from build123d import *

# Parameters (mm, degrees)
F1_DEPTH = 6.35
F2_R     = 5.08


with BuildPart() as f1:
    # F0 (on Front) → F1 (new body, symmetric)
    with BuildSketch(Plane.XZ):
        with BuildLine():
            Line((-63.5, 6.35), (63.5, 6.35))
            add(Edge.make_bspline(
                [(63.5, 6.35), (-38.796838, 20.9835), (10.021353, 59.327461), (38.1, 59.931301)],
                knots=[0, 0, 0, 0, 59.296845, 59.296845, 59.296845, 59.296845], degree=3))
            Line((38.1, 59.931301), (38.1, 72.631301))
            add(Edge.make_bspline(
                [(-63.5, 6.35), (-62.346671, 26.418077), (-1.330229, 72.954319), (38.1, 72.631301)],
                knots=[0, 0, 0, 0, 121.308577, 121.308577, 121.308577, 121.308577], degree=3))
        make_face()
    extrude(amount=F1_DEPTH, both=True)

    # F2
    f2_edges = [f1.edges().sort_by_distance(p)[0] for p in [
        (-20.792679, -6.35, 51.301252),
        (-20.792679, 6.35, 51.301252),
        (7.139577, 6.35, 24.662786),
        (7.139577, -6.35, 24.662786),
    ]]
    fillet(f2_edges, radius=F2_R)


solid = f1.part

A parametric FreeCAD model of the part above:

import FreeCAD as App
import Part
import Sketcher
from FreeCAD import Vector


def edges_at(feature, points):
    """Names of the edges that pass closest to the given points."""
    edges = feature.Shape.Edges
    near = lambda p: min(range(len(edges)), key=lambda i: edges[i].distToShape(Part.Vertex(*p))[0])
    return sorted({f"Edge{near(p) + 1}" for p in points})

doc = App.newDocument("Part")
params = doc.addObject("Spreadsheet::Sheet", "Params")
for row, (alias, value) in enumerate([
    ("pad1_length", "0.5 in"),
    ("fillet_radius", "0.2 in"),
], start=1):
    params.set(f"A{row}", alias)
    params.set(f"B{row}", "=" + value)
    params.setAlias(f"B{row}", alias)

body = doc.addObject("PartDesign::Body", "Body")

sketch1 = body.newObject("Sketcher::SketchObject", "Sketch")
sketch1.AttachmentSupport = (doc.getObject("XZ_Plane"), [""])
sketch1.MapMode = "FlatFace"
sketch1.addGeometry([
    Part.LineSegment(Vector(-63.5, 6.35, 0), Vector(63.5, 6.35, 0)),
    Part.BSplineCurve([Vector(63.5, 6.35, 0), Vector(-38.796838, 20.9835, 0), Vector(10.021353, 59.327461, 0), Vector(38.1, 59.931301, 0)], [4, 4], [0, 59.296845], False, 3, [1, 1, 1, 1], False),
    Part.LineSegment(Vector(38.1, 59.931301, 0), Vector(38.1, 72.631301, 0)),
    Part.BSplineCurve([Vector(-63.5, 6.35, 0), Vector(-62.346671, 26.418077, 0), Vector(-1.330229, 72.954319, 0), Vector(38.1, 72.631301, 0)], [4, 4], [0, 121.308577], False, 3, [1, 1, 1, 1], False),
], False)
sketch1.addConstraint([
    Sketcher.Constraint("Block", 1),
    Sketcher.Constraint("Block", 3),
    Sketcher.Constraint("Coincident", 0, 2, 1, 1),
    Sketcher.Constraint("Coincident", 1, 2, 2, 1),
    Sketcher.Constraint("Coincident", 2, 2, 3, 2),
    Sketcher.Constraint("Coincident", 3, 1, 0, 1),
])
pad1 = body.newObject("PartDesign::Pad", "Pad")
pad1.Profile = sketch1
pad1.setExpression("Length", "Params.pad1_length")
pad1.Midplane = True
doc.recompute()

fillet = body.newObject("PartDesign::Fillet", "Fillet")
fillet.Base = (pad1, edges_at(pad1, [
    (-20.793, -6.35, 51.301),
    (-20.793, 6.35, 51.301),
    (7.14, 6.35, 24.663),
    (7.14, -6.35, 24.663),
]))
fillet.setExpression("Radius", "Params.fillet_radius")

doc.recompute()
